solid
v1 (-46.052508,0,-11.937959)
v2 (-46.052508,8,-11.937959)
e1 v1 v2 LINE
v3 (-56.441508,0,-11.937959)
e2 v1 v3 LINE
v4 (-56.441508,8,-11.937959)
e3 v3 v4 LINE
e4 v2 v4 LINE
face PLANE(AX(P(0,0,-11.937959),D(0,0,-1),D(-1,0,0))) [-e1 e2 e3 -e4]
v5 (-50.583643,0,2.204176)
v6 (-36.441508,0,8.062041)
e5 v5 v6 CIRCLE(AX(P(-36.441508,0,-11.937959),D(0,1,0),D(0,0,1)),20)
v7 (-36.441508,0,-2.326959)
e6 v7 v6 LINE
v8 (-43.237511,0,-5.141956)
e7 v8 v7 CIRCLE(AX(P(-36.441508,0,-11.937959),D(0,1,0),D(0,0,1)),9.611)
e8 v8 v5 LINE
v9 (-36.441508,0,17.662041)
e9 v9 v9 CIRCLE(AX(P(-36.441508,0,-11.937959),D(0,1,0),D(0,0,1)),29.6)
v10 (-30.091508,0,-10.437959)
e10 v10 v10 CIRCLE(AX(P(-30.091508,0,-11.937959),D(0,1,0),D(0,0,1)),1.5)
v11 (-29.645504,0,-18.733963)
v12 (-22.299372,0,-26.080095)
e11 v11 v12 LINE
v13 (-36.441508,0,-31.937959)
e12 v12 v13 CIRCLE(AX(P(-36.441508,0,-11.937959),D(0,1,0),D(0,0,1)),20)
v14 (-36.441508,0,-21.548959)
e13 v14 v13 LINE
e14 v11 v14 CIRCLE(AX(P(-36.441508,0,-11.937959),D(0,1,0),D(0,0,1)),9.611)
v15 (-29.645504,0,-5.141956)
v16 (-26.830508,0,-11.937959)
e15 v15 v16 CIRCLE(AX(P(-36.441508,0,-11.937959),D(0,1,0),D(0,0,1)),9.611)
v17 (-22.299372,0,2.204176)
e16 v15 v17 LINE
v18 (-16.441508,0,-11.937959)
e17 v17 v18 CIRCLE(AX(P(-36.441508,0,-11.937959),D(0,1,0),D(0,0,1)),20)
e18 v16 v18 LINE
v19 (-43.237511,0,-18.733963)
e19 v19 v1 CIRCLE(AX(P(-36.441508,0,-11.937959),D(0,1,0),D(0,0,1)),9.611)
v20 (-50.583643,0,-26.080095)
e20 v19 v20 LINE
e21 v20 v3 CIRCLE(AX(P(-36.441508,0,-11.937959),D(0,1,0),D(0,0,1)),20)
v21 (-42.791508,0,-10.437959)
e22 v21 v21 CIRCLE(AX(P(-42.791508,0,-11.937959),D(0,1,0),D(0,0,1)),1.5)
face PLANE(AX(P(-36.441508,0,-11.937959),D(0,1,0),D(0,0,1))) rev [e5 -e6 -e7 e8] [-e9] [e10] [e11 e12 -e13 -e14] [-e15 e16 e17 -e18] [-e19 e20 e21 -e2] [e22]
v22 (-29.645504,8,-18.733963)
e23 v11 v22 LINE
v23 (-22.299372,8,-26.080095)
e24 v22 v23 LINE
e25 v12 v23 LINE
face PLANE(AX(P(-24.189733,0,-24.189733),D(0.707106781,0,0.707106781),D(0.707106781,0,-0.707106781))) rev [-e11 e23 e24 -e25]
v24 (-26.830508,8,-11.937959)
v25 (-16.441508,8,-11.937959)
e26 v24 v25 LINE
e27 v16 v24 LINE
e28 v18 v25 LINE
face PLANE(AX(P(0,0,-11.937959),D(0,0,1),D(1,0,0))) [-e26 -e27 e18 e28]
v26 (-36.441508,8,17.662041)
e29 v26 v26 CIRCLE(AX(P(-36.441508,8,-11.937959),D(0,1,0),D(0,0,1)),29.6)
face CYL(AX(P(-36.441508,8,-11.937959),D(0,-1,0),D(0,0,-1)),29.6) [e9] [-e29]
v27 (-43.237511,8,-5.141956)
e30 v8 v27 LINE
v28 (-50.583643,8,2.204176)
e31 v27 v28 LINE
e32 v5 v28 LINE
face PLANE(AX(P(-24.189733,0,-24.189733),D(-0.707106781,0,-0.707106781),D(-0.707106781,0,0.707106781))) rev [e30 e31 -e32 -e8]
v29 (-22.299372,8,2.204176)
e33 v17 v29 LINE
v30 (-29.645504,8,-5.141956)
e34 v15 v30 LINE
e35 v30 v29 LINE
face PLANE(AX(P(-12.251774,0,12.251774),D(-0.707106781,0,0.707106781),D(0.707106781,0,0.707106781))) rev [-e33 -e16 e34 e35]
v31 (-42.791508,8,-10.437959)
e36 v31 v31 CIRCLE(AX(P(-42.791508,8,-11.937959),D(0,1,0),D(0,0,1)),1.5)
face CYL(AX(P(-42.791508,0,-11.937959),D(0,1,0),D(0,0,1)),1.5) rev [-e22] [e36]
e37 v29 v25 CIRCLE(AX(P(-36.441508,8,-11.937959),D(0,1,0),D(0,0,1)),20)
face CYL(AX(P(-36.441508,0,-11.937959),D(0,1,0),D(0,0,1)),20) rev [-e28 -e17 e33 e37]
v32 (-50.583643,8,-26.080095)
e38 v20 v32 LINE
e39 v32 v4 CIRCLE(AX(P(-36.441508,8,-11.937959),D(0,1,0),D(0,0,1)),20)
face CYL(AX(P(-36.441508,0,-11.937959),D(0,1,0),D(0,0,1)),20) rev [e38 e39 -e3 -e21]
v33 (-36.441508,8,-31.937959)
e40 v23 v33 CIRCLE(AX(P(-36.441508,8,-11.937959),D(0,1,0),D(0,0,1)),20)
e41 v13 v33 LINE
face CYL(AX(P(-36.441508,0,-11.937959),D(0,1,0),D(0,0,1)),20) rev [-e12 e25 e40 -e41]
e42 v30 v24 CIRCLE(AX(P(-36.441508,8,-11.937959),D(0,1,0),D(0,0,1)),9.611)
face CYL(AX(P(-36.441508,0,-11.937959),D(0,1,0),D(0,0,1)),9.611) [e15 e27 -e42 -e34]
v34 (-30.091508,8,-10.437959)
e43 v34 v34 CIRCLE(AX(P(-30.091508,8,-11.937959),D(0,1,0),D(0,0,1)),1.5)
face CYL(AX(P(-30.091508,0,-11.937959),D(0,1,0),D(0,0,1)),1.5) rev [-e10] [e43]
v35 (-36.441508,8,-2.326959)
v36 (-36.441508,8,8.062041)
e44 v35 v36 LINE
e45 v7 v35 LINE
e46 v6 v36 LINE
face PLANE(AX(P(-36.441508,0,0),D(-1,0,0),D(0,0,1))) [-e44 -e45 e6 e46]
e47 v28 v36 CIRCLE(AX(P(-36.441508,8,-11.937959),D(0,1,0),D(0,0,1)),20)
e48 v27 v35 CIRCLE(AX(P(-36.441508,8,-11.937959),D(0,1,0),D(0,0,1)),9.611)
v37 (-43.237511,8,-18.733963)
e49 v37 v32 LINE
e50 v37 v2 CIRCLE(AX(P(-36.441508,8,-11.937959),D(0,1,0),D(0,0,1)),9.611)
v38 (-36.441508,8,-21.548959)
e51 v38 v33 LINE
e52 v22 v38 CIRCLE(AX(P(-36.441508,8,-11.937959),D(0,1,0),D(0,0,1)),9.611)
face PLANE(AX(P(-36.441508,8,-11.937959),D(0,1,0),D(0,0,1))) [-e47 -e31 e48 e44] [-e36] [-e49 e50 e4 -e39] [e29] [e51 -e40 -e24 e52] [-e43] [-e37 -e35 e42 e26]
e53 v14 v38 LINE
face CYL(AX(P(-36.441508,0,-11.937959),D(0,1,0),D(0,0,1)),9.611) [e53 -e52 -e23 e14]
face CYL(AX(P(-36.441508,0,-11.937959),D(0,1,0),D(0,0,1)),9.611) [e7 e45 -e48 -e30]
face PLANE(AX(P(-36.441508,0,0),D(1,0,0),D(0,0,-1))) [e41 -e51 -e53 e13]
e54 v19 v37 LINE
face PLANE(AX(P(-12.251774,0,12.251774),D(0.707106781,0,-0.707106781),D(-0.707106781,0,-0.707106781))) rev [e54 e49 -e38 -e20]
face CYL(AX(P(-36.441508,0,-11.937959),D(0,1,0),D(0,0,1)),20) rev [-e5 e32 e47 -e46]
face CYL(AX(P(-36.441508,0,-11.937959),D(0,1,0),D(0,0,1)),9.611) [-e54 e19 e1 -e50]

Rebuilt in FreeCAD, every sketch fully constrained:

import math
import FreeCAD as App
import Part
import Sketcher
from FreeCAD import Vector

doc = App.newDocument("Part")
body = doc.addObject("PartDesign::Body", "Body")

# Sketch on XZ plane
sketch1 = doc.addObject("Sketcher::SketchObject", "Sketch")
body.addObject(sketch1)
sketch1.AttachmentSupport = (doc.XZ_Plane, [""])
sketch1.MapMode = "FlatFace"
sketch1.addGeometry(Part.Circle(Vector(-36.441508, -11.937959, 0), Vector(0, 0, 1), 29.6), False)
sketch1.addConstraint(Sketcher.Constraint("Diameter", 0, 59.2))
sketch1.addConstraint(Sketcher.Constraint("DistanceY", 0, 3, -1, 1, 11.937959))
sketch1.addConstraint(Sketcher.Constraint("DistanceX", 0, 3, -1, 1, 36.441508))
pad1 = doc.addObject("PartDesign::Pad", "Pad")
body.addObject(pad1)
pad1.Profile = sketch1
pad1.Length = 8
pad1.Reversed = True

# Sketch on XZ plane
sketch2 = doc.addObject("Sketcher::SketchObject", "Sketch001")
body.addObject(sketch2)
sketch2.AttachmentSupport = (doc.XZ_Plane, [""])
sketch2.MapMode = "FlatFace"
sketch2.AttachmentOffset = App.Placement(Vector(0, 0, -8), App.Rotation())
sketch2.addGeometry(Part.ArcOfCircle(Part.Circle(Vector(-36.441508, -11.937959, 0), Vector(0, 0, 1), 9.611), math.radians(-180), math.radians(-135)), False)
sketch2.addGeometry(Part.LineSegment(Vector(-43.237511, -18.733963, 0), Vector(-50.583643, -26.080095, 0)), False)
sketch2.addGeometry(Part.ArcOfCircle(Part.Circle(Vector(-36.441508, -11.937959, 0), Vector(0, 0, 1), 20), math.radians(-180), math.radians(-135)), False)
sketch2.addGeometry(Part.LineSegment(Vector(-56.441508, -11.937959, 0), Vector(-46.052508, -11.937959, 0)), False)
sketch2.addGeometry(Part.ArcOfCircle(Part.Circle(Vector(-36.441508, -11.937959, 0), Vector(0, 0, 1), 9.611), math.radians(-90), math.radians(-45)), False)
sketch2.addGeometry(Part.LineSegment(Vector(-29.645504, -18.733963, 0), Vector(-22.299372, -26.080095, 0)), False)
sketch2.addGeometry(Part.ArcOfCircle(Part.Circle(Vector(-36.441508, -11.937959, 0), Vector(0, 0, 1), 20), math.radians(-90), math.radians(-45)), False)
sketch2.addGeometry(Part.LineSegment(Vector(-36.441508, -31.937959, 0), Vector(-36.441508, -21.548959, 0)), False)
sketch2.addGeometry(Part.LineSegment(Vector(-16.441508, -11.937959, 0), Vector(-26.830508, -11.937959, 0)), False)
sketch2.addGeometry(Part.ArcOfCircle(Part.Circle(Vector(-36.441508, -11.937959, 0), Vector(0, 0, 1), 9.611), math.radians(0), math.radians(45)), False)
sketch2.addGeometry(Part.LineSegment(Vector(-29.645504, -5.141956, 0), Vector(-22.299372, 2.204176, 0)), False)
sketch2.addGeometry(Part.ArcOfCircle(Part.Circle(Vector(-36.441508, -11.937959, 0), Vector(0, 0, 1), 20), math.radians(0), math.radians(45)), False)
sketch2.addGeometry(Part.LineSegment(Vector(-36.441508, 8.062041, 0), Vector(-36.441508, -2.326959, 0)), False)
sketch2.addGeometry(Part.ArcOfCircle(Part.Circle(Vector(-36.441508, -11.937959, 0), Vector(0, 0, 1), 9.611), math.radians(90), math.radians(135)), False)
sketch2.addGeometry(Part.LineSegment(Vector(-43.237511, -5.141956, 0), Vector(-50.583643, 2.204176, 0)), False)
sketch2.addGeometry(Part.ArcOfCircle(Part.Circle(Vector(-36.441508, -11.937959, 0), Vector(0, 0, 1), 20), math.radians(90), math.radians(135)), False)
sketch2.addConstraint(Sketcher.Constraint("Coincident", 0, 2, 1, 1))
sketch2.addConstraint(Sketcher.Constraint("Coincident", 1, 2, 2, 2))
sketch2.addConstraint(Sketcher.Constraint("Coincident", 2, 1, 3, 1))
sketch2.addConstraint(Sketcher.Constraint("Coincident", 3, 2, 0, 1))
sketch2.addConstraint(Sketcher.Constraint("Coincident", 4, 2, 5, 1))
sketch2.addConstraint(Sketcher.Constraint("Coincident", 5, 2, 6, 2))
sketch2.addConstraint(Sketcher.Constraint("Coincident", 6, 1, 7, 1))
sketch2.addConstraint(Sketcher.Constraint("Coincident", 7, 2, 4, 1))
sketch2.addConstraint(Sketcher.Constraint("Coincident", 8, 2, 9, 1))
sketch2.addConstraint(Sketcher.Constraint("Coincident", 9, 2, 10, 1))
sketch2.addConstraint(Sketcher.Constraint("Coincident", 10, 2, 11, 2))
sketch2.addConstraint(Sketcher.Constraint("Coincident", 11, 1, 8, 1))
sketch2.addConstraint(Sketcher.Constraint("Coincident", 12, 2, 13, 1))
sketch2.addConstraint(Sketcher.Constraint("Coincident", 13, 2, 14, 1))
sketch2.addConstraint(Sketcher.Constraint("Coincident", 14, 2, 15, 2))
sketch2.addConstraint(Sketcher.Constraint("Coincident", 15, 1, 12, 1))
sketch2.addConstraint(Sketcher.Constraint("Horizontal", 3))
sketch2.addConstraint(Sketcher.Constraint("Vertical", 7))
sketch2.addConstraint(Sketcher.Constraint("Horizontal", 8))
sketch2.addConstraint(Sketcher.Constraint("Vertical", 12))
sketch2.addConstraint(Sketcher.Constraint("Coincident", 2, 3, 0, 3))
sketch2.addConstraint(Sketcher.Constraint("Coincident", 4, 3, 0, 3))
sketch2.addConstraint(Sketcher.Constraint("Coincident", 6, 3, 0, 3))
sketch2.addConstraint(Sketcher.Constraint("Coincident", 9, 3, 0, 3))
sketch2.addConstraint(Sketcher.Constraint("Coincident", 11, 3, 0, 3))
sketch2.addConstraint(Sketcher.Constraint("Coincident", 13, 3, 0, 3))
sketch2.addConstraint(Sketcher.Constraint("Coincident", 15, 3, 0, 3))
sketch2.addConstraint(Sketcher.Constraint("Equal", 0, 4))
sketch2.addConstraint(Sketcher.Constraint("Equal", 2, 6))
sketch2.addConstraint(Sketcher.Constraint("Equal", 4, 9))
sketch2.addConstraint(Sketcher.Constraint("Equal", 6, 11))
sketch2.addConstraint(Sketcher.Constraint("Equal", 9, 13))
sketch2.addConstraint(Sketcher.Constraint("Equal", 11, 15))
sketch2.addConstraint(Sketcher.Constraint("Perpendicular", 1, 5))
sketch2.addConstraint(Sketcher.Constraint("Perpendicular", 5, 10))
sketch2.addConstraint(Sketcher.Constraint("Perpendicular", 10, 14))
sketch2.addConstraint(Sketcher.Constraint("Horizontal", 15, 3, 2, 1))
sketch2.addConstraint(Sketcher.Constraint("Horizontal", 0, 2, 4, 2))
sketch2.addConstraint(Sketcher.Constraint("Horizontal", 1, 2, 5, 2))
sketch2.addConstraint(Sketcher.Constraint("Horizontal", 3, 2, 8, 2))
sketch2.addConstraint(Sketcher.Constraint("Horizontal", 9, 2, 13, 2))
sketch2.addConstraint(Sketcher.Constraint("Vertical", 15, 3, 6, 1))
sketch2.addConstraint(Sketcher.Constraint("Vertical", 4, 2, 9, 2))
sketch2.addConstraint(Sketcher.Constraint("Vertical", 7, 2, 12, 2))
sketch2.addConstraint(Sketcher.Constraint("Radius", 2, 20.0))
sketch2.addConstraint(Sketcher.Constraint("Radius", 0, 9.611))
sketch2.addConstraint(Sketcher.Constraint("DistanceY", 0, 3, -1, 1, 11.937959))
sketch2.addConstraint(Sketcher.Constraint("DistanceX", 0, 2, -1, 1, 43.237511))
sketch2.addConstraint(Sketcher.Constraint("DistanceX", 0, 3, -1, 1, 36.441508))
pocket1 = doc.addObject("PartDesign::Pocket", "Pocket")
body.addObject(pocket1)
pocket1.Profile = sketch2
pocket1.Length = 8
pocket1.Reversed = True

# Sketch on XZ plane
sketch3 = doc.addObject("Sketcher::SketchObject", "Sketch002")
body.addObject(sketch3)
sketch3.AttachmentSupport = (doc.XZ_Plane, [""])
sketch3.MapMode = "FlatFace"
sketch3.AttachmentOffset = App.Placement(Vector(0, 0, -8), App.Rotation())
sketch3.addGeometry(Part.Circle(Vector(-30.091508, -11.937959, 0), Vector(0, 0, 1), 1.5), False)
sketch3.addGeometry(Part.Circle(Vector(-42.791508, -11.937959, 0), Vector(0, 0, 1), 1.5), False)
sketch3.addConstraint(Sketcher.Constraint("Equal", 0, 1))
sketch3.addConstraint(Sketcher.Constraint("Horizontal", 0, 3, 1, 3))
sketch3.addConstraint(Sketcher.Constraint("Diameter", 0, 3.0))
sketch3.addConstraint(Sketcher.Constraint("DistanceX", 1, 3, 0, 3, 12.7))
sketch3.addConstraint(Sketcher.Constraint("DistanceY", 0, 3, -1, 1, 11.937959))
sketch3.addConstraint(Sketcher.Constraint("DistanceX", 0, 3, -1, 1, 30.091508))
pocket2 = doc.addObject("PartDesign::Pocket", "Pocket001")
body.addObject(pocket2)
pocket2.Profile = sketch3
pocket2.Length = 8
pocket2.Reversed = True

doc.recompute()
